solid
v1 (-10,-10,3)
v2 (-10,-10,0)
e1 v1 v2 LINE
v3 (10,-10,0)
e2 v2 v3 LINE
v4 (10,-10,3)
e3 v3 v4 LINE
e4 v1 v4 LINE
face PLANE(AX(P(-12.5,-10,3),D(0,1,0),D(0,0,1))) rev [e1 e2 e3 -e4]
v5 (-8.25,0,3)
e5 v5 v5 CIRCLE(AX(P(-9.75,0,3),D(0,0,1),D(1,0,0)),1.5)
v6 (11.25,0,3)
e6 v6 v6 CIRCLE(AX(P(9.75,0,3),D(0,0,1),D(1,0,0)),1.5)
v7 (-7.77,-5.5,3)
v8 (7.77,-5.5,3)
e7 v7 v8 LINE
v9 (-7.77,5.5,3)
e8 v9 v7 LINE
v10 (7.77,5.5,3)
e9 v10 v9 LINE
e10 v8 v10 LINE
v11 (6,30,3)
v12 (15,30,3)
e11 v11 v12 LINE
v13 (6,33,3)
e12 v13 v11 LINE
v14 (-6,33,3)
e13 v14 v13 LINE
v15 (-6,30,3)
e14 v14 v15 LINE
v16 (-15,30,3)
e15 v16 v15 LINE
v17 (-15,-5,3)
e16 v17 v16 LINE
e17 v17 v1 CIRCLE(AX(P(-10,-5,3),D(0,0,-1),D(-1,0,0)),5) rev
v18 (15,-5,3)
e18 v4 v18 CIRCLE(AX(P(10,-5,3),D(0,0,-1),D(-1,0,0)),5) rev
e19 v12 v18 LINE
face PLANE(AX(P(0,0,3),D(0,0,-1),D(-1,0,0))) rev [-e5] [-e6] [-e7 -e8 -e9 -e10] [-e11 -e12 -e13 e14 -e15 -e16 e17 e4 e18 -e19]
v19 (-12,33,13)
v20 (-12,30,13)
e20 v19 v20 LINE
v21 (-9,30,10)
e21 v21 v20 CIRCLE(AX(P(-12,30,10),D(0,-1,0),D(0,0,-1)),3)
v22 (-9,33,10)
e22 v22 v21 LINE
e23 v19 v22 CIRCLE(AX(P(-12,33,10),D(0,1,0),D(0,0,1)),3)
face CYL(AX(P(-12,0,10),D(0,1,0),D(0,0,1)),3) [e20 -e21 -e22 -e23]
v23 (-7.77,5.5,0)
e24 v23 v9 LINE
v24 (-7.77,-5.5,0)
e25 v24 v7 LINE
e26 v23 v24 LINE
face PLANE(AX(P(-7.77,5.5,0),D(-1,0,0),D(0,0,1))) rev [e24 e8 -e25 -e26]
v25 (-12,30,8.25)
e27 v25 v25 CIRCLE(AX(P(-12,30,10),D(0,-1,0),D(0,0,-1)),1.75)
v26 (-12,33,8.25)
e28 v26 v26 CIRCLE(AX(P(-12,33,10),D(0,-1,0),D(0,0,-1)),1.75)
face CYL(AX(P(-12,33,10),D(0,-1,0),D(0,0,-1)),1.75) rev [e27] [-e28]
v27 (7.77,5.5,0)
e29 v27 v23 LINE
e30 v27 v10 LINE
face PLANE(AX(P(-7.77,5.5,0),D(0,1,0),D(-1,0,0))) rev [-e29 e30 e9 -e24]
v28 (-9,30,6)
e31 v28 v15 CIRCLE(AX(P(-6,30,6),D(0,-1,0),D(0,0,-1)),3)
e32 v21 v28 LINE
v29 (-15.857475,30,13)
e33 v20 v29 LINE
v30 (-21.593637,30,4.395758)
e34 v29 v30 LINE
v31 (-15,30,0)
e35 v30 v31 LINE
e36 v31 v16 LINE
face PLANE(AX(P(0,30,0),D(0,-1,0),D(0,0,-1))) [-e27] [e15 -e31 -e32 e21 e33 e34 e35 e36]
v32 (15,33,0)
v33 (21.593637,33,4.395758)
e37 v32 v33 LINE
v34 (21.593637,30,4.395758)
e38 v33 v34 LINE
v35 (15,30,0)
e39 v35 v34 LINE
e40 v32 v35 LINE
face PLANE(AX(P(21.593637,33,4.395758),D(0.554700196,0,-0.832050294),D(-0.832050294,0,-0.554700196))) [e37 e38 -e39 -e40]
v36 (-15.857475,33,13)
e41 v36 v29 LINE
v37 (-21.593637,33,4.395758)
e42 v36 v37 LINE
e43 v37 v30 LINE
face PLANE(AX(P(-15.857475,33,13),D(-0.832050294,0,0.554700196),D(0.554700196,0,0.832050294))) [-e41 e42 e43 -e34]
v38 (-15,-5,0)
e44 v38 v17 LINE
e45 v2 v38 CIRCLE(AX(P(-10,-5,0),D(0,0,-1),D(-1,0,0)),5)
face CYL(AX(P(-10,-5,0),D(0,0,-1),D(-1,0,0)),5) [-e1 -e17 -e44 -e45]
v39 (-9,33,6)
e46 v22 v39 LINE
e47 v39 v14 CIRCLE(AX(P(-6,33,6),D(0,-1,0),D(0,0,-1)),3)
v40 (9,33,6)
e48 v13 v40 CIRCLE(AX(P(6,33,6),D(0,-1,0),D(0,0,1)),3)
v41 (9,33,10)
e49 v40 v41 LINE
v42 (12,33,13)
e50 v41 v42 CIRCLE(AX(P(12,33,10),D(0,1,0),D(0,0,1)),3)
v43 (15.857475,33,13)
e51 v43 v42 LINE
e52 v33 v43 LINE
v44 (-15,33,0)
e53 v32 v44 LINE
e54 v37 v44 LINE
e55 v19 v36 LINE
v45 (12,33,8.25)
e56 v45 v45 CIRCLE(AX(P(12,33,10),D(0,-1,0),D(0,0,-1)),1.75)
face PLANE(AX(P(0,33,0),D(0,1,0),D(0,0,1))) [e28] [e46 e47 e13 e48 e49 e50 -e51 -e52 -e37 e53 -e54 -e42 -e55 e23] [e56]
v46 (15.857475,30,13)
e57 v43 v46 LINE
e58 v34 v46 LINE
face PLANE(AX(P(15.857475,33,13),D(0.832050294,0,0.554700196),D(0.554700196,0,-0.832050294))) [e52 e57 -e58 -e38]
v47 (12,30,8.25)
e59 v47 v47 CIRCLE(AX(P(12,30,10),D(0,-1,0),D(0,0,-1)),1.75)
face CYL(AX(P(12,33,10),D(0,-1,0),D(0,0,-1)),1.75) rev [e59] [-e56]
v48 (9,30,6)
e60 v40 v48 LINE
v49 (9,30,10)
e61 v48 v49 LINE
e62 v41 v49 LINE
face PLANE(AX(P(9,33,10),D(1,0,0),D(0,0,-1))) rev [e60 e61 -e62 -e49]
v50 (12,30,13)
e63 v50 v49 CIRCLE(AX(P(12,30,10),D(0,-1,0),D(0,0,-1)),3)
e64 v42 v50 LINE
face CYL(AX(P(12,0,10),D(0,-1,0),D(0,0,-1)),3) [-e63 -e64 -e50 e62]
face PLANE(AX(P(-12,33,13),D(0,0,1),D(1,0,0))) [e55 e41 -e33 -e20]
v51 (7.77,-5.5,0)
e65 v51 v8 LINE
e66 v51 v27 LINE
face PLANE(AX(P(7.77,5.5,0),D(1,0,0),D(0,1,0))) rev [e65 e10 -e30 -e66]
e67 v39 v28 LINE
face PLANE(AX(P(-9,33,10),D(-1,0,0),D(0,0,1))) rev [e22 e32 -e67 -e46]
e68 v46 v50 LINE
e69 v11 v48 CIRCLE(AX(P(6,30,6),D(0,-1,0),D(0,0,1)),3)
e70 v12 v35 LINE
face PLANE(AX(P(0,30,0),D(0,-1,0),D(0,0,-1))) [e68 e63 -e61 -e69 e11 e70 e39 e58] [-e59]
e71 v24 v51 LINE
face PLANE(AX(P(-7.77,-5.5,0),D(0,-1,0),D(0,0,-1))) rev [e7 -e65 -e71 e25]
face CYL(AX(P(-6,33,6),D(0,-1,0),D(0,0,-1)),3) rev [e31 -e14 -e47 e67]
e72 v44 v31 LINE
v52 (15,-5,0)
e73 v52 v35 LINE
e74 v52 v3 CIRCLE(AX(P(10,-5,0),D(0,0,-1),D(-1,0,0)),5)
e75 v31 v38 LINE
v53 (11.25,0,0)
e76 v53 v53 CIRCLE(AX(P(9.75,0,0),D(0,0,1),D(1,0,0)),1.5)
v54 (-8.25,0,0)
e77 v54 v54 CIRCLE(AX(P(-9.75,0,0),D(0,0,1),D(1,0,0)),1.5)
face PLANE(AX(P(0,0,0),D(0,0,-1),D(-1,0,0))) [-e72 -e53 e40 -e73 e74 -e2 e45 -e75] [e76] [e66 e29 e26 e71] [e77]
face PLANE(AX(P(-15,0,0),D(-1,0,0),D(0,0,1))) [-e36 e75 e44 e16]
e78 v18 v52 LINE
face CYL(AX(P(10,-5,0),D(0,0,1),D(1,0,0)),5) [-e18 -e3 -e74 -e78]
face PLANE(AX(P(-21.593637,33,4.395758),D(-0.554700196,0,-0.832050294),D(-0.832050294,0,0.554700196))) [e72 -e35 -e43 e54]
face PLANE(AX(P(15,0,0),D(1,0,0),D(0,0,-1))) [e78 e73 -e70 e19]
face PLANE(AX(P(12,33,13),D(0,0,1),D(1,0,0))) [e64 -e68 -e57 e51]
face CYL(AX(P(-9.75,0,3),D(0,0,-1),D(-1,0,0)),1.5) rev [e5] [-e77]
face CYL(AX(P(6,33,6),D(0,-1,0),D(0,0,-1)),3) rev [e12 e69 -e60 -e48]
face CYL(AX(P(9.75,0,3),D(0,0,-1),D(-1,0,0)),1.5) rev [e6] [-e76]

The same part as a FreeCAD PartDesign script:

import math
import FreeCAD as App
import Part
import Sketcher
from FreeCAD import Vector


def edges_at(feature, points):
    """Names of the edges that pass closest to the given points."""
    edges = feature.Shape.Edges
    near = lambda p: min(range(len(edges)), key=lambda i: edges[i].distToShape(Part.Vertex(*p))[0])
    return sorted({f"Edge{near(p) + 1}" for p in points})


def add_polygon(sketch, points):
    """Adds a closed chain of lines whose ends are joined by coincident constraints."""
    first, n = sketch.GeometryCount, len(points)
    for a, b in zip(points, points[1:] + points[:1]):
        sketch.addGeometry(Part.LineSegment(App.Vector(*a, 0), App.Vector(*b, 0)), False)
    for i in range(n):
        sketch.addConstraint(Sketcher.Constraint("Coincident", first + i, 2, first + (i + 1) % n, 1))

doc = App.newDocument("Part")
body = doc.addObject("PartDesign::Body", "Body")

# Sketch on XY plane
sketch1 = body.newObject("Sketcher::SketchObject", "Sketch")
sketch1.AttachmentSupport = (doc.getObject("XY_Plane"), [""])
sketch1.MapMode = "FlatFace"
add_polygon(sketch1, [(-12.5, 10), (-12.5, -10), (12.5, -10), (12.5, 10)])  # lines 0-3
sketch1.addGeometry(Part.Circle(Vector(-9.8, 0, 0), Vector(0, 0, 1), 1.5), False)  # 4
sketch1.addGeometry(Part.Circle(Vector(9.8, 0, 0), Vector(0, 0, 1), 1.5), False)  # 5
sketch1.addConstraint([
    Sketcher.Constraint("Vertical", 0),
    Sketcher.Constraint("Horizontal", 1),
    Sketcher.Constraint("Vertical", 2),
    Sketcher.Constraint("Horizontal", 3),
    Sketcher.Constraint("Equal", 4, 5),
    Sketcher.Constraint("Symmetric", 4, 3, 5, 3, -1, 1),
    Sketcher.Constraint("Symmetric", 0, 2, 2, 2, -1, 1),
    Sketcher.Constraint("PointOnObject", 4, 3, -1),
    Sketcher.Constraint("Diameter", 4, 3.0),
    Sketcher.Constraint("DistanceX", 1, 1, 1, 2, 25.0),
    Sketcher.Constraint("DistanceY", 0, 2, 0, 1, 20.0),
    Sketcher.Constraint("DistanceX", 4, 3, 5, 3, 19.5),
])
pad1 = body.newObject("PartDesign::Pad", "Pad")
pad1.Profile = sketch1
pad1.Length = 3

# Sketch on XY plane
sketch2 = body.newObject("Sketcher::SketchObject", "Sketch001")
sketch2.AttachmentSupport = (doc.getObject("XY_Plane"), [""])
sketch2.MapMode = "FlatFace"
sketch2.AttachmentOffset = App.Placement(Vector(0, 0, 3), App.Rotation())
add_polygon(sketch2, [(-8, 6), (-8, -6), (8, -6), (8, 6)])  # lines 0-3
sketch2.addConstraint([
    Sketcher.Constraint("Vertical", 0),
    Sketcher.Constraint("Horizontal", 1),
    Sketcher.Constraint("Vertical", 2),
    Sketcher.Constraint("Horizontal", 3),
    Sketcher.Constraint("Symmetric", 0, 2, 2, 2, -1, 1),
    Sketcher.Constraint("DistanceY", 0, 2, 0, 1, 11.0),
    Sketcher.Constraint("DistanceX", 1, 1, 1, 2, 15.54),
])
pocket1 = body.newObject("PartDesign::Pocket", "Pocket")
pocket1.Profile = sketch2
pocket1.Type = "ThroughAll"

# Sketch on XZ plane
sketch3 = body.newObject("Sketcher::SketchObject", "Sketch002")
sketch3.AttachmentSupport = (doc.getObject("XZ_Plane"), [""])
sketch3.MapMode = "FlatFace"
sketch3.AttachmentOffset = App.Placement(Vector(0, 0, -10), App.Rotation())
add_polygon(sketch3, [(-12.5, 0), (-12.5, 3), (12.5, 3), (12.5, 0)])  # lines 0-3
sketch3.addConstraint([
    Sketcher.Constraint("Vertical", 0),
    Sketcher.Constraint("Horizontal", 1),
    Sketcher.Constraint("Vertical", 2),
    Sketcher.Constraint("Horizontal", 3),
    Sketcher.Constraint("Symmetric", 2, 2, 3, 2, -1, 1),
    Sketcher.Constraint("DistanceX", 1, 1, 1, 2, 25.0),
    Sketcher.Constraint("DistanceY", 0, 1, 0, 2, 3.0),
])
pad2 = body.newObject("PartDesign::Pad", "Pad001")
pad2.Profile = sketch3
pad2.Length = 3
pad2.Reversed = True

# Sketch on XY plane
sketch4 = body.newObject("Sketcher::SketchObject", "Sketch003")
sketch4.AttachmentSupport = (doc.getObject("XY_Plane"), [""])
sketch4.MapMode = "FlatFace"
sketch4.AttachmentOffset = App.Placement(Vector(0, 0, 3), App.Rotation())
add_polygon(sketch4, [(-12.5, 13), (-12.5, 10), (12.5, 10), (12.5, 13)])  # lines 0-3
sketch4.addConstraint([
    Sketcher.Constraint("Vertical", 0),
    Sketcher.Constraint("Horizontal", 1),
    Sketcher.Constraint("Vertical", 2),
    Sketcher.Constraint("Horizontal", 3),
    Sketcher.Constraint("DistanceX", 1, 1, 1, 2, 25.0),
    Sketcher.Constraint("DistanceY", 0, 2, 0, 1, 3.0),
    Sketcher.Constraint("DistanceY", -1, 1, 0, 2, 10.0),
    Sketcher.Constraint("DistanceX", 0, 2, -1, 1, 12.5),
])
pad3 = body.newObject("PartDesign::Pad", "Pad002")
pad3.Profile = sketch4
pad3.Length = 10

# Sketch on XZ plane
sketch5 = body.newObject("Sketcher::SketchObject", "Sketch004")
sketch5.AttachmentSupport = (doc.getObject("XZ_Plane"), [""])
sketch5.MapMode = "FlatFace"
sketch5.AttachmentOffset = App.Placement(Vector(0, 0, -13), App.Rotation())
add_polygon(sketch5, [(-12, 0), (-12, 13), (12, 13), (12, 0)])  # lines 0-3
sketch5.addConstraint([
    Sketcher.Constraint("Vertical", 0),
    Sketcher.Constraint("Horizontal", 1),
    Sketcher.Constraint("Vertical", 2),
    Sketcher.Constraint("Horizontal", 3),
    Sketcher.Constraint("Symmetric", 2, 2, 3, 2, -1, 1),
    Sketcher.Constraint("DistanceX", 1, 1, 1, 2, 25.0),
    Sketcher.Constraint("DistanceY", 0, 1, 0, 2, 13.0),
])
pad4 = body.newObject("PartDesign::Pad", "Pad003")
pad4.Profile = sketch5
pad4.Length = 20
pad4.Reversed = True

# Sketch on XZ plane
sketch6 = body.newObject("Sketcher::SketchObject", "Sketch005")
sketch6.AttachmentSupport = (doc.getObject("XZ_Plane"), [""])
sketch6.MapMode = "FlatFace"
sketch6.AttachmentOffset = App.Placement(Vector(0, 0, -10), App.Rotation())
add_polygon(sketch6, [(-12, 13), (-12, 3), (12, 3), (12, 13)])  # lines 0-3
sketch6.addConstraint([
    Sketcher.Constraint("Vertical", 0),
    Sketcher.Constraint("Horizontal", 1),
    Sketcher.Constraint("Vertical", 2),
    Sketcher.Constraint("Horizontal", 3),
    Sketcher.Constraint("DistanceX", 1, 1, 1, 2, 25.0),
    Sketcher.Constraint("DistanceY", 0, 2, 0, 1, 10.0),
    Sketcher.Constraint("DistanceY", -1, 1, 0, 2, 3.0),
    Sketcher.Constraint("DistanceX", 0, 2, -1, 1, 12.5),
])
pocket2 = body.newObject("PartDesign::Pocket", "Pocket001")
pocket2.Profile = sketch6
pocket2.Length = 20

# Sketch on YZ plane
sketch7 = body.newObject("Sketcher::SketchObject", "Sketch006")
sketch7.AttachmentSupport = (doc.getObject("YZ_Plane"), [""])
sketch7.MapMode = "FlatFace"
sketch7.AttachmentOffset = App.Placement(Vector(0, 0, -12.5), App.Rotation())
add_polygon(sketch7, [(-10, 3), (30, 3), (30, 13), (33, 13), (33, 0), (-10, 0)])  # lines 0-5
sketch7.addConstraint([
    Sketcher.Constraint("Horizontal", 0),
    Sketcher.Constraint("Vertical", 1),
    Sketcher.Constraint("Horizontal", 2),
    Sketcher.Constraint("Vertical", 3),
    Sketcher.Constraint("Horizontal", 4),
    Sketcher.Constraint("Vertical", 5),
    Sketcher.Constraint("PointOnObject", 3, 2, -1),
    Sketcher.Constraint("Equal", 2, 5),
    Sketcher.Constraint("DistanceX", 0, 1, 0, 2, 40.0),
    Sketcher.Constraint("DistanceX", 2, 1, 2, 2, 3.0),
    Sketcher.Constraint("DistanceY", 1, 1, 1, 2, 10.0),
    Sketcher.Constraint("DistanceX", -1, 1, 0, 2, 30.0),
])
pad5 = body.newObject("PartDesign::Pad", "Pad004")
pad5.Profile = sketch7
pad5.Length = 2.5
pad5.Reversed = True

# Sketch on YZ plane
sketch8 = body.newObject("Sketcher::SketchObject", "Sketch007")
sketch8.AttachmentSupport = (doc.getObject("YZ_Plane"), [""])
sketch8.MapMode = "FlatFace"
sketch8.AttachmentOffset = App.Placement(Vector(0, 0, 12.5), App.Rotation())
add_polygon(sketch8, [(30, 13), (30, 3), (-10, 3), (-10, 0), (33, 0), (33, 13)])  # lines 0-5
sketch8.addConstraint([
    Sketcher.Constraint("Vertical", 0),
    Sketcher.Constraint("Horizontal", 1),
    Sketcher.Constraint("Vertical", 2),
    Sketcher.Constraint("Horizontal", 3),
    Sketcher.Constraint("Vertical", 4),
    Sketcher.Constraint("Horizontal", 5),
    Sketcher.Constraint("PointOnObject", 2, 2, -1),
    Sketcher.Constraint("Equal", 5, 2),
    Sketcher.Constraint("DistanceX", 1, 2, 1, 1, 40.0),
    Sketcher.Constraint("DistanceX", 3, 1, 3, 2, 43.0),
    Sketcher.Constraint("DistanceY", 0, 2, 0, 1, 10.0),
    Sketcher.Constraint("DistanceX", -1, 1, 0, 2, 30.0),
])
pad6 = body.newObject("PartDesign::Pad", "Pad005")
pad6.Profile = sketch8
pad6.Length = 2.5

# Sketch on XZ plane
sketch9 = body.newObject("Sketcher::SketchObject", "Sketch008")
sketch9.AttachmentSupport = (doc.getObject("XZ_Plane"), [""])
sketch9.MapMode = "FlatFace"
sketch9.AttachmentOffset = App.Placement(Vector(0, 0, -30), App.Rotation())
sketch9.addGeometry([
    Part.Circle(Vector(-12, 10, 0), Vector(0, 0, 1), 1.8),
    Part.Circle(Vector(12, 10, 0), Vector(0, 0, 1), 1.8),
], False)
sketch9.addConstraint([
    Sketcher.Constraint("Equal", 0, 1),
    Sketcher.Constraint("Symmetric", 0, 3, 1, 3, -2),
    Sketcher.Constraint("Diameter", 0, 3.5),
    Sketcher.Constraint("DistanceX", 0, 3, -1, 1, 12.0),
    Sketcher.Constraint("DistanceY", -1, 1, 0, 3, 10.0),
])
pocket3 = body.newObject("PartDesign::Pocket", "Pocket002")
pocket3.Profile = sketch9
pocket3.Type = "ThroughAll"
doc.recompute()

fillet = body.newObject("PartDesign::Fillet", "Fillet")
fillet.Base = (pocket3, edges_at(pocket3, [(-15, 31.5, 13)]))
fillet.Radius = 3
doc.recompute()

fillet2 = body.newObject("PartDesign::Fillet", "Fillet001")
fillet2.Base = (fillet, edges_at(fillet, [(15, 31.5, 13)]))
fillet2.Radius = 3

# Sketch on XZ plane
sketch10 = body.newObject("Sketcher::SketchObject", "Sketch009")
sketch10.AttachmentSupport = (doc.getObject("XZ_Plane"), [""])
sketch10.MapMode = "FlatFace"
sketch10.AttachmentOffset = App.Placement(Vector(0, 0, -30), App.Rotation())
sketch10.addGeometry([
    Part.LineSegment(Vector(-9, 10, 0), Vector(-9, 6, 0)),  # 0
    Part.ArcOfCircle(Part.Circle(Vector(-6, 6, 0), Vector(0, 0, 1), 3), math.radians(180), math.radians(270)),  # 1
    Part.LineSegment(Vector(-6, 3, 0), Vector(6, 3, 0)),  # 2
    Part.ArcOfCircle(Part.Circle(Vector(6, 6, 0), Vector(0, 0, 1), 3), math.radians(-90), math.radians(0)),  # 3
    Part.LineSegment(Vector(9, 6, 0), Vector(9, 10, 0)),  # 4
    Part.ArcOfCircle(Part.Circle(Vector(12, 10, 0), Vector(0, 0, 1), 3), math.radians(90), math.radians(180)),  # 5
    Part.LineSegment(Vector(12, 13, 0), Vector(-12, 13, 0)),  # 6
    Part.ArcOfCircle(Part.Circle(Vector(-12, 10, 0), Vector(0, 0, 1), 3), math.radians(0), math.radians(90)),  # 7
], False)
sketch10.addConstraint([
    Sketcher.Constraint("Tangent", 0, 2, 1, 1),
    Sketcher.Constraint("Tangent", 1, 2, 2, 1),
    Sketcher.Constraint("Tangent", 2, 2, 3, 1),
    Sketcher.Constraint("Tangent", 3, 2, 4, 1),
    Sketcher.Constraint("Tangent", 4, 2, 5, 2),
    Sketcher.Constraint("Tangent", 5, 1, 6, 1),
    Sketcher.Constraint("Tangent", 6, 2, 7, 2),
    Sketcher.Constraint("Tangent", 7, 1, 0, 1),
    Sketcher.Constraint("Vertical", 0),
    Sketcher.Constraint("Horizontal", 2),
    Sketcher.Constraint("Vertical", 4),
    Sketcher.Constraint("Horizontal", 6),
    Sketcher.Constraint("Equal", 1, 3),
    Sketcher.Constraint("Equal", 3, 5),
    Sketcher.Constraint("Equal", 5, 7),
    Sketcher.Constraint("Radius", 1, 3.0),
    Sketcher.Constraint("DistanceX", 2, 1, 2, 2, 12.0),
    Sketcher.Constraint("DistanceY", 0, 2, 0, 1, 4.0),
    Sketcher.Constraint("DistanceX", 1, 3, -1, 1, 6.0),
    Sketcher.Constraint("DistanceY", -1, 1, 1, 3, 6.0),
])
pocket4 = body.newObject("PartDesign::Pocket", "Pocket003")
pocket4.Profile = sketch10
pocket4.Type = "ThroughAll"
doc.recompute()

fillet3 = body.newObject("PartDesign::Fillet", "Fillet002")
fillet3.Base = (pocket4, edges_at(pocket4, [(15, -10, 1.5), (-15, -10, 1.5)]))
fillet3.Radius = 5

# Sketch on XZ plane
sketch11 = body.newObject("Sketcher::SketchObject", "Sketch010")
sketch11.AttachmentSupport = (doc.getObject("XZ_Plane"), [""])
sketch11.MapMode = "FlatFace"
sketch11.AttachmentOffset = App.Placement(Vector(0, 0, -30), App.Rotation())
sketch11.addGeometry([
    Part.LineSegment(Vector(-12, 13, 0), Vector(-15.9, 13, 0)),  # 0
    Part.LineSegment(Vector(-15.9, 13, 0), Vector(-21.6, 4.4, 0)),  # 1
    Part.LineSegment(Vector(-21.6, 4.4, 0), Vector(-15, 0, 0)),  # 2
    Part.LineSegment(Vector(-15, 0, 0), Vector(-15, 10, 0)),  # 3
    Part.ArcOfCircle(Part.Circle(Vector(-12, 10, 0), Vector(0, 0, 1), 3), math.radians(90), math.radians(180)),  # 4
    Part.LineSegment(Vector(15.9, 13, 0), Vector(12, 13, 0)),  # 5
    Part.ArcOfCircle(Part.Circle(Vector(12, 10, 0), Vector(0, 0, 1), 3), math.radians(0), math.radians(90)),  # 6
    Part.LineSegment(Vector(15, 10, 0), Vector(15, 0, 0)),  # 7
    Part.LineSegment(Vector(15, 0, 0), Vector(21.6, 4.4, 0)),  # 8
    Part.LineSegment(Vector(21.6, 4.4, 0), Vector(15.9, 13, 0)),  # 9
], False)
sketch11.addConstraint([
    Sketcher.Constraint("Coincident", 0, 2, 1, 1),
    Sketcher.Constraint("Coincident", 1, 2, 2, 1),
    Sketcher.Constraint("Coincident", 2, 2, 3, 1),
    Sketcher.Constraint("Tangent", 3, 2, 4, 2),
    Sketcher.Constraint("Tangent", 4, 1, 0, 1),
    Sketcher.Constraint("Tangent", 5, 2, 6, 2),
    Sketcher.Constraint("Tangent", 6, 1, 7, 1),
    Sketcher.Constraint("Coincident", 7, 2, 8, 1),
    Sketcher.Constraint("Coincident", 8, 2, 9, 1),
    Sketcher.Constraint("Coincident", 9, 2, 5, 1),
    Sketcher.Constraint("Horizontal", 0),
    Sketcher.Constraint("Vertical", 3),
    Sketcher.Constraint("Horizontal", 5),
    Sketcher.Constraint("Vertical", 7),
    Sketcher.Constraint("Equal", 4, 6),
    Sketcher.Constraint("Symmetric", 2, 2, 7, 2, -1, 1),
    Sketcher.Constraint("Symmetric", 1, 2, 8, 2, -2),
    Sketcher.Constraint("Symmetric", 0, 2, 9, 2, -2),
    Sketcher.Constraint("PointOnObject", 2, 2, -1),
    Sketcher.Constraint("Perpendicular", 1, 2),
    Sketcher.Constraint("Radius", 4, 3.0),
    Sketcher.Constraint("DistanceY", 3, 1, 3, 2, 10.0),
    Sketcher.Constraint("DistanceX", 4, 3, -1, 1, 12.0),
    Sketcher.Constraint("DistanceX", 0, 2, 0, 1, 3.857475),
    Sketcher.Constraint("DistanceX", 1, 2, 0, 2, 5.736162),
])
pad7 = body.newObject("PartDesign::Pad", "Pad006")
pad7.Profile = sketch11
pad7.Length = 3
pad7.Reversed = True

doc.recompute()
